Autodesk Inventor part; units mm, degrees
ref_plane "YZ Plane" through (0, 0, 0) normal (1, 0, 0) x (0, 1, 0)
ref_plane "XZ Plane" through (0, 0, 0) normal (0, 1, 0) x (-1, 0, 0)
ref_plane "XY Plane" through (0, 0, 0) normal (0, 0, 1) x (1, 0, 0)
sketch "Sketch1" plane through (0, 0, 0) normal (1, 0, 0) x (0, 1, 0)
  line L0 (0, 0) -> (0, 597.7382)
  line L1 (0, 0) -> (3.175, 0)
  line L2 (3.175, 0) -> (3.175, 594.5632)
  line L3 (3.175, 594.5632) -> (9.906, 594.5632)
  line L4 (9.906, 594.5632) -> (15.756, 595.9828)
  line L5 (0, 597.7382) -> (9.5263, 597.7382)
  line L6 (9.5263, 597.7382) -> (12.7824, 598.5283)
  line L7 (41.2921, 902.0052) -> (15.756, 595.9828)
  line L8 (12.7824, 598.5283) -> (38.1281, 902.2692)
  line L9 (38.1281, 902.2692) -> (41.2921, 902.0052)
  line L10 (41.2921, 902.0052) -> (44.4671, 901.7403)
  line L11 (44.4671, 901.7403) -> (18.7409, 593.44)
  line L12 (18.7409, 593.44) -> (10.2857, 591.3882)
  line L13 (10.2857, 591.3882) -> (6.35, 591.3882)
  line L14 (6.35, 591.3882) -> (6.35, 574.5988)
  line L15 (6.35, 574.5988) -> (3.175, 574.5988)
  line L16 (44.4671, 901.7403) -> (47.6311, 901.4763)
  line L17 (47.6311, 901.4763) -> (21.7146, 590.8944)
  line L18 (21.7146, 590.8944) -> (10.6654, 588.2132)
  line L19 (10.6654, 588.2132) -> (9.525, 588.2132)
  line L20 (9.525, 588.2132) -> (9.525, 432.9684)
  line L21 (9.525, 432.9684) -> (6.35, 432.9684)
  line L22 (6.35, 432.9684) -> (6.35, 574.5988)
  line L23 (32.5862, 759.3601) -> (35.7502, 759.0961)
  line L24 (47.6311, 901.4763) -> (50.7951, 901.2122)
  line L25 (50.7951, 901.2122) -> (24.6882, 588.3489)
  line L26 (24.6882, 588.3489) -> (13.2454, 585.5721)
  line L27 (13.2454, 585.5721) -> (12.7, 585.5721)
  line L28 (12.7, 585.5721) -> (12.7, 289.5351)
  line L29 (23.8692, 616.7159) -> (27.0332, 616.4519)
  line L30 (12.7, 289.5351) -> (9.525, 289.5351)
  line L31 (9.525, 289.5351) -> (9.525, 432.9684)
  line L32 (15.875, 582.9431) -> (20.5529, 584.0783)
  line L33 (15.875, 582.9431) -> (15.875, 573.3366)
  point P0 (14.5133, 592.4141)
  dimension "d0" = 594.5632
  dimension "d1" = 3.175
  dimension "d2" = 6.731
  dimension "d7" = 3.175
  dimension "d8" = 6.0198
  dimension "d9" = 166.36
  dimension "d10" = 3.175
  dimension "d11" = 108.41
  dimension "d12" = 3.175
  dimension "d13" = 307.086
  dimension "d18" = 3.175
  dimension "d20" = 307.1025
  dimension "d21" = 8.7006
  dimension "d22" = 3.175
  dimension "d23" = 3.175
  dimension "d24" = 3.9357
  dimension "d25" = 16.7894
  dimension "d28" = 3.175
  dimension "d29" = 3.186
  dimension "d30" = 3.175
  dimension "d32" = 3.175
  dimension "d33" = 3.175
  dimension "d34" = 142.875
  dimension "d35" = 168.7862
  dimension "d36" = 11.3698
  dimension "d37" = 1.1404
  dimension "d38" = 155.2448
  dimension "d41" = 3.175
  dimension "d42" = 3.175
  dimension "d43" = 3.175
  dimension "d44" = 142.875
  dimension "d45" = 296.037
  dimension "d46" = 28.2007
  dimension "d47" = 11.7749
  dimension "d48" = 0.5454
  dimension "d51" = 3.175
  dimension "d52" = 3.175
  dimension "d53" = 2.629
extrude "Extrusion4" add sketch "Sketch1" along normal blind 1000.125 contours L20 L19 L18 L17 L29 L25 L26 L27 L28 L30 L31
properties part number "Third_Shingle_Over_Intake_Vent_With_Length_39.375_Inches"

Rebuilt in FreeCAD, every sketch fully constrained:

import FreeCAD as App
import Part
import Sketcher
Q = App.Units.Quantity


def add_polygon(sketch, points):
    """Adds a closed chain of lines whose ends are joined by coincident constraints."""
    first, n = sketch.GeometryCount, len(points)
    for a, b in zip(points, points[1:] + points[:1]):
        sketch.addGeometry(Part.LineSegment(App.Vector(*a, 0), App.Vector(*b, 0)), False)
    for i in range(n):
        sketch.addConstraint(Sketcher.Constraint("Coincident", first + i, 2, first + (i + 1) % n, 1))

doc = App.newDocument("Part")
body = doc.addObject("PartDesign::Body", "Body")

# Sketch on YZ plane
sketch1 = body.newObject("Sketcher::SketchObject", "Sketch")
sketch1.AttachmentSupport = (doc.getObject("YZ_Plane"), [""])
sketch1.MapMode = "FlatFace"
add_polygon(sketch1, [(9.5, 588.2), (9.5, 289.5), (12.7, 289.5), (12.7, 585.6), (13.2, 585.6), (24.7, 588.3), (27, 616.5), (23.9, 616.7), (21.7, 590.9), (10.7, 588.2)])  # lines 0-9
sketch1.addConstraint([
    Sketcher.Constraint("Vertical", 0),
    Sketcher.Constraint("Horizontal", 1),
    Sketcher.Constraint("Vertical", 2),
    Sketcher.Constraint("Horizontal", 3),
    Sketcher.Constraint("Horizontal", 9),
    Sketcher.Constraint("Perpendicular", 5, 6),
    Sketcher.Constraint("Perpendicular", 6, 7),
    Sketcher.Constraint("Parallel", 4, 8),
    Sketcher.Constraint("DistanceX", 1, 1, 1, 2, Q("0.125 in")),
    Sketcher.Constraint("DistanceY", 2, 1, 2, 2, Q("11.655 in")),
    Sketcher.Constraint("Angle", 8, Q("-166.3602 deg")),
    Sketcher.Constraint("Distance", 6, Q("0.125 in")),
    Sketcher.Constraint("DistanceX", 9, 2, 9, 1, Q("0.0449 in")),
    Sketcher.Constraint("DistanceX", 3, 1, 3, 2, 0.5454),
    Sketcher.Constraint("DistanceX", -1, 1, 1, 2, Q("0.5 in")),
    Sketcher.Constraint("Distance", 4, 11.775),
    Sketcher.Constraint("Distance", 5, 28.2007),
    Sketcher.Constraint("Distance", 8, 11.3699),
    Sketcher.Constraint("Angle", 5, Q("85.23 deg")),
    Sketcher.Constraint("DistanceY", -1, 1, 8, 2, Q("23.158 in")),
])
pad1 = body.newObject("PartDesign::Pad", "Pad")
pad1.Profile = sketch1
pad1.Length = Q("39.375 in")

doc.recompute()
